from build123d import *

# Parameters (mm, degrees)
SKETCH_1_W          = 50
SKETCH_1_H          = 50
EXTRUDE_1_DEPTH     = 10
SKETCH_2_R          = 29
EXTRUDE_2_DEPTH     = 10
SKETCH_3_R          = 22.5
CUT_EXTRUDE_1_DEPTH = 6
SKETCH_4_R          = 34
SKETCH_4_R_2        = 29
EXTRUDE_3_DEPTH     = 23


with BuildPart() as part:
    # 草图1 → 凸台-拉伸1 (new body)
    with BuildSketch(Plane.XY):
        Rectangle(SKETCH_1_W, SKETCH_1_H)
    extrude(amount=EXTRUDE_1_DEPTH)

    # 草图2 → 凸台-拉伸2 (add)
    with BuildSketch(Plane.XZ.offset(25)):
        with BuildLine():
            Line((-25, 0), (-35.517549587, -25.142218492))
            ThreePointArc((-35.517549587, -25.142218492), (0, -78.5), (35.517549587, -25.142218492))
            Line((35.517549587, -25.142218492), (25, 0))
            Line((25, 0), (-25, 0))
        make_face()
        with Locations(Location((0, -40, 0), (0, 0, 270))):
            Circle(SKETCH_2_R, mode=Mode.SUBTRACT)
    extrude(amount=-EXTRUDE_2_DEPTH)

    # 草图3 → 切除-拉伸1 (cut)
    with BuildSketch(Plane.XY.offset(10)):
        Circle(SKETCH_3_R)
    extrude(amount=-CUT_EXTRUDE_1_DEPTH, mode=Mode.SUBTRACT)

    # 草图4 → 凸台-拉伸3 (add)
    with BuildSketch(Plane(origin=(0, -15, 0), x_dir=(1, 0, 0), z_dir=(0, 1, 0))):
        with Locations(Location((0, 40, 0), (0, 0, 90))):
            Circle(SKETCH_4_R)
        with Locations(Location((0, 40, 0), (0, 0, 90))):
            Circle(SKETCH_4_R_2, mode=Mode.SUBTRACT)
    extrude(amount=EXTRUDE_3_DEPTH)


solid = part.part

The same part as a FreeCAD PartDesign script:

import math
import FreeCAD as App
import Part
import Sketcher
from FreeCAD import Vector

doc = App.newDocument("Part")
body = doc.addObject("PartDesign::Body", "Body")

# Sketch on XY plane
sketch1 = body.newObject("Sketcher::SketchObject", "Sketch")
sketch1.AttachmentSupport = (doc.getObject("XY_Plane"), [""])
sketch1.MapMode = "FlatFace"
sketch1.addGeometry(Part.LineSegment(Vector(-25, 25, 0), Vector(-25, -25, 0)), False)
sketch1.addGeometry(Part.LineSegment(Vector(-25, -25, 0), Vector(25, -25, 0)), False)
sketch1.addGeometry(Part.LineSegment(Vector(25, -25, 0), Vector(25, 25, 0)), False)
sketch1.addGeometry(Part.LineSegment(Vector(25, 25, 0), Vector(-25, 25, 0)), False)
sketch1.addConstraint(Sketcher.Constraint("Coincident", 0, 2, 1, 1))
sketch1.addConstraint(Sketcher.Constraint("Coincident", 1, 2, 2, 1))
sketch1.addConstraint(Sketcher.Constraint("Coincident", 2, 2, 3, 1))
sketch1.addConstraint(Sketcher.Constraint("Coincident", 3, 2, 0, 1))
sketch1.addConstraint(Sketcher.Constraint("Vertical", 0))
sketch1.addConstraint(Sketcher.Constraint("Horizontal", 1))
sketch1.addConstraint(Sketcher.Constraint("Vertical", 2))
sketch1.addConstraint(Sketcher.Constraint("Horizontal", 3))
sketch1.addConstraint(Sketcher.Constraint("Symmetric", 0, 2, 2, 2, -1, 1))
sketch1.addConstraint(Sketcher.Constraint("Equal", 3, 0))
sketch1.addConstraint(Sketcher.Constraint("DistanceX", 1, 1, 1, 2, 50.0))
pad1 = body.newObject("PartDesign::Pad", "Pad")
pad1.Profile = sketch1
pad1.Length = 10

# Sketch on XZ plane
sketch2 = body.newObject("Sketcher::SketchObject", "Sketch001")
sketch2.AttachmentSupport = (doc.getObject("XZ_Plane"), [""])
sketch2.MapMode = "FlatFace"
sketch2.AttachmentOffset = App.Placement(Vector(0, 0, 25), App.Rotation())
sketch2.addGeometry(Part.LineSegment(Vector(-25, 0, 0), Vector(-36, -25, 0)), False)
sketch2.addGeometry(Part.ArcOfCircle(Part.Circle(Vector(0, -40, 0), Vector(0, 0, 1), 38), math.radians(157), math.radians(383)), False)
sketch2.addGeometry(Part.LineSegment(Vector(36, -25, 0), Vector(25, 0, 0)), False)
sketch2.addGeometry(Part.LineSegment(Vector(25, 0, 0), Vector(-25, 0, 0)), False)
sketch2.addGeometry(Part.Circle(Vector(0, -40, 0), Vector(0, 0, 1), 29), False)
sketch2.addConstraint(Sketcher.Constraint("Tangent", 0, 2, 1, 1))
sketch2.addConstraint(Sketcher.Constraint("Tangent", 1, 2, 2, 1))
sketch2.addConstraint(Sketcher.Constraint("Coincident", 2, 2, 3, 1))
sketch2.addConstraint(Sketcher.Constraint("Coincident", 3, 2, 0, 1))
sketch2.addConstraint(Sketcher.Constraint("Horizontal", 3))
sketch2.addConstraint(Sketcher.Constraint("Coincident", 4, 3, 1, 3))
sketch2.addConstraint(Sketcher.Constraint("Symmetric", 2, 2, 3, 2, -1, 1))
sketch2.addConstraint(Sketcher.Constraint("PointOnObject", 1, 3, -2))
sketch2.addConstraint(Sketcher.Constraint("Diameter", 4, 58.0))
sketch2.addConstraint(Sketcher.Constraint("Radius", 1, 38.5))
sketch2.addConstraint(Sketcher.Constraint("DistanceX", 3, 2, 3, 1, 50.0))
sketch2.addConstraint(Sketcher.Constraint("DistanceY", 1, 3, -1, 1, 40.0))
pad2 = body.newObject("PartDesign::Pad", "Pad001")
pad2.Profile = sketch2
pad2.Length = 10
pad2.Reversed = True

# Sketch on XY plane
sketch3 = body.newObject("Sketcher::SketchObject", "Sketch002")
sketch3.AttachmentSupport = (doc.getObject("XY_Plane"), [""])
sketch3.MapMode = "FlatFace"
sketch3.AttachmentOffset = App.Placement(Vector(0, 0, 10), App.Rotation())
sketch3.addGeometry(Part.Circle(Vector(0, 0, 0), Vector(0, 0, 1), 22), False)
sketch3.addConstraint(Sketcher.Constraint("Coincident", 0, 3, -1, 1))
sketch3.addConstraint(Sketcher.Constraint("Diameter", 0, 45.0))
pocket1 = body.newObject("PartDesign::Pocket", "Pocket")
pocket1.Profile = sketch3
pocket1.Length = 6

# Sketch on XZ plane
sketch4 = body.newObject("Sketcher::SketchObject", "Sketch003")
sketch4.AttachmentSupport = (doc.getObject("XZ_Plane"), [""])
sketch4.MapMode = "FlatFace"
sketch4.AttachmentOffset = App.Placement(Vector(0, 0, 15), App.Rotation())
sketch4.addGeometry(Part.Circle(Vector(0, -40, 0), Vector(0, 0, 1), 34), False)
sketch4.addGeometry(Part.Circle(Vector(0, -40, 0), Vector(0, 0, 1), 29), False)
sketch4.addConstraint(Sketcher.Constraint("Coincident", 1, 3, 0, 3))
sketch4.addConstraint(Sketcher.Constraint("PointOnObject", 0, 3, -2))
sketch4.addConstraint(Sketcher.Constraint("Diameter", 0, 68.0))
sketch4.addConstraint(Sketcher.Constraint("Diameter", 1, 58.0))
sketch4.addConstraint(Sketcher.Constraint("DistanceY", 0, 3, -1, 1, 40.0))
pad3 = body.newObject("PartDesign::Pad", "Pad002")
pad3.Profile = sketch4
pad3.Length = 23
pad3.Reversed = True

doc.recompute()
